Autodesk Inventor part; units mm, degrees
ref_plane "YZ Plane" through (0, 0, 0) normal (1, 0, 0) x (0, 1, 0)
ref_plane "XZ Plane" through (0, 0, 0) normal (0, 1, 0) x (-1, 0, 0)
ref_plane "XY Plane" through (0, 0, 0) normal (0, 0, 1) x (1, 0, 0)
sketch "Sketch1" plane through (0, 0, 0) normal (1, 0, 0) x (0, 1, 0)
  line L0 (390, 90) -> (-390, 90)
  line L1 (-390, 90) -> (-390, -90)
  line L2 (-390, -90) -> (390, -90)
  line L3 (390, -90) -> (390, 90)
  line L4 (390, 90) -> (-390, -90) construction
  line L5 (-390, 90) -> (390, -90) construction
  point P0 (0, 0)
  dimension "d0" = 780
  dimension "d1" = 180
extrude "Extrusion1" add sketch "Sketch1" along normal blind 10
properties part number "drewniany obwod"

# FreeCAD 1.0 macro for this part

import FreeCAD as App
import Part
import Sketcher
Q = App.Units.Quantity


def add_polygon(sketch, points):
    """Adds a closed chain of lines whose ends are joined by coincident constraints."""
    first, n = sketch.GeometryCount, len(points)
    for a, b in zip(points, points[1:] + points[:1]):
        sketch.addGeometry(Part.LineSegment(App.Vector(*a, 0), App.Vector(*b, 0)), False)
    for i in range(n):
        sketch.addConstraint(Sketcher.Constraint("Coincident", first + i, 2, first + (i + 1) % n, 1))

doc = App.newDocument("Part")
params = doc.addObject("Spreadsheet::Sheet", "Params")
for row, (alias, value) in enumerate([
    ("sketch1_width", "780 mm"),
    ("sketch1_height", "180 mm"),
    ("pad1_length", "10 mm"),
], start=1):
    params.set(f"A{row}", alias)
    params.set(f"B{row}", "=" + value)
    params.setAlias(f"B{row}", alias)

body = doc.addObject("PartDesign::Body", "Body")

sketch1 = body.newObject("Sketcher::SketchObject", "Sketch")
sketch1.AttachmentSupport = (doc.getObject("YZ_Plane"), [""])
sketch1.MapMode = "FlatFace"
add_polygon(sketch1, [(390, -90), (390, 90), (-390, 90), (-390, -90)])
sketch1.addConstraint([
    Sketcher.Constraint("Vertical", 0),
    Sketcher.Constraint("Horizontal", 1),
    Sketcher.Constraint("Vertical", 2),
    Sketcher.Constraint("Horizontal", 3),
    Sketcher.Constraint("Symmetric", 0, 2, 2, 2, -1, 1),
    Sketcher.Constraint("DistanceX", 1, 2, 1, 1, Q("780 mm")),
    Sketcher.Constraint("DistanceY", 0, 1, 0, 2, Q("180 mm")),
])
sketch1.setExpression("Constraints[9]", "Params.sketch1_width")
sketch1.setExpression("Constraints[10]", "Params.sketch1_height")
pad1 = body.newObject("PartDesign::Pad", "Pad")
pad1.Profile = sketch1
pad1.setExpression("Length", "Params.pad1_length")

doc.recompute()
